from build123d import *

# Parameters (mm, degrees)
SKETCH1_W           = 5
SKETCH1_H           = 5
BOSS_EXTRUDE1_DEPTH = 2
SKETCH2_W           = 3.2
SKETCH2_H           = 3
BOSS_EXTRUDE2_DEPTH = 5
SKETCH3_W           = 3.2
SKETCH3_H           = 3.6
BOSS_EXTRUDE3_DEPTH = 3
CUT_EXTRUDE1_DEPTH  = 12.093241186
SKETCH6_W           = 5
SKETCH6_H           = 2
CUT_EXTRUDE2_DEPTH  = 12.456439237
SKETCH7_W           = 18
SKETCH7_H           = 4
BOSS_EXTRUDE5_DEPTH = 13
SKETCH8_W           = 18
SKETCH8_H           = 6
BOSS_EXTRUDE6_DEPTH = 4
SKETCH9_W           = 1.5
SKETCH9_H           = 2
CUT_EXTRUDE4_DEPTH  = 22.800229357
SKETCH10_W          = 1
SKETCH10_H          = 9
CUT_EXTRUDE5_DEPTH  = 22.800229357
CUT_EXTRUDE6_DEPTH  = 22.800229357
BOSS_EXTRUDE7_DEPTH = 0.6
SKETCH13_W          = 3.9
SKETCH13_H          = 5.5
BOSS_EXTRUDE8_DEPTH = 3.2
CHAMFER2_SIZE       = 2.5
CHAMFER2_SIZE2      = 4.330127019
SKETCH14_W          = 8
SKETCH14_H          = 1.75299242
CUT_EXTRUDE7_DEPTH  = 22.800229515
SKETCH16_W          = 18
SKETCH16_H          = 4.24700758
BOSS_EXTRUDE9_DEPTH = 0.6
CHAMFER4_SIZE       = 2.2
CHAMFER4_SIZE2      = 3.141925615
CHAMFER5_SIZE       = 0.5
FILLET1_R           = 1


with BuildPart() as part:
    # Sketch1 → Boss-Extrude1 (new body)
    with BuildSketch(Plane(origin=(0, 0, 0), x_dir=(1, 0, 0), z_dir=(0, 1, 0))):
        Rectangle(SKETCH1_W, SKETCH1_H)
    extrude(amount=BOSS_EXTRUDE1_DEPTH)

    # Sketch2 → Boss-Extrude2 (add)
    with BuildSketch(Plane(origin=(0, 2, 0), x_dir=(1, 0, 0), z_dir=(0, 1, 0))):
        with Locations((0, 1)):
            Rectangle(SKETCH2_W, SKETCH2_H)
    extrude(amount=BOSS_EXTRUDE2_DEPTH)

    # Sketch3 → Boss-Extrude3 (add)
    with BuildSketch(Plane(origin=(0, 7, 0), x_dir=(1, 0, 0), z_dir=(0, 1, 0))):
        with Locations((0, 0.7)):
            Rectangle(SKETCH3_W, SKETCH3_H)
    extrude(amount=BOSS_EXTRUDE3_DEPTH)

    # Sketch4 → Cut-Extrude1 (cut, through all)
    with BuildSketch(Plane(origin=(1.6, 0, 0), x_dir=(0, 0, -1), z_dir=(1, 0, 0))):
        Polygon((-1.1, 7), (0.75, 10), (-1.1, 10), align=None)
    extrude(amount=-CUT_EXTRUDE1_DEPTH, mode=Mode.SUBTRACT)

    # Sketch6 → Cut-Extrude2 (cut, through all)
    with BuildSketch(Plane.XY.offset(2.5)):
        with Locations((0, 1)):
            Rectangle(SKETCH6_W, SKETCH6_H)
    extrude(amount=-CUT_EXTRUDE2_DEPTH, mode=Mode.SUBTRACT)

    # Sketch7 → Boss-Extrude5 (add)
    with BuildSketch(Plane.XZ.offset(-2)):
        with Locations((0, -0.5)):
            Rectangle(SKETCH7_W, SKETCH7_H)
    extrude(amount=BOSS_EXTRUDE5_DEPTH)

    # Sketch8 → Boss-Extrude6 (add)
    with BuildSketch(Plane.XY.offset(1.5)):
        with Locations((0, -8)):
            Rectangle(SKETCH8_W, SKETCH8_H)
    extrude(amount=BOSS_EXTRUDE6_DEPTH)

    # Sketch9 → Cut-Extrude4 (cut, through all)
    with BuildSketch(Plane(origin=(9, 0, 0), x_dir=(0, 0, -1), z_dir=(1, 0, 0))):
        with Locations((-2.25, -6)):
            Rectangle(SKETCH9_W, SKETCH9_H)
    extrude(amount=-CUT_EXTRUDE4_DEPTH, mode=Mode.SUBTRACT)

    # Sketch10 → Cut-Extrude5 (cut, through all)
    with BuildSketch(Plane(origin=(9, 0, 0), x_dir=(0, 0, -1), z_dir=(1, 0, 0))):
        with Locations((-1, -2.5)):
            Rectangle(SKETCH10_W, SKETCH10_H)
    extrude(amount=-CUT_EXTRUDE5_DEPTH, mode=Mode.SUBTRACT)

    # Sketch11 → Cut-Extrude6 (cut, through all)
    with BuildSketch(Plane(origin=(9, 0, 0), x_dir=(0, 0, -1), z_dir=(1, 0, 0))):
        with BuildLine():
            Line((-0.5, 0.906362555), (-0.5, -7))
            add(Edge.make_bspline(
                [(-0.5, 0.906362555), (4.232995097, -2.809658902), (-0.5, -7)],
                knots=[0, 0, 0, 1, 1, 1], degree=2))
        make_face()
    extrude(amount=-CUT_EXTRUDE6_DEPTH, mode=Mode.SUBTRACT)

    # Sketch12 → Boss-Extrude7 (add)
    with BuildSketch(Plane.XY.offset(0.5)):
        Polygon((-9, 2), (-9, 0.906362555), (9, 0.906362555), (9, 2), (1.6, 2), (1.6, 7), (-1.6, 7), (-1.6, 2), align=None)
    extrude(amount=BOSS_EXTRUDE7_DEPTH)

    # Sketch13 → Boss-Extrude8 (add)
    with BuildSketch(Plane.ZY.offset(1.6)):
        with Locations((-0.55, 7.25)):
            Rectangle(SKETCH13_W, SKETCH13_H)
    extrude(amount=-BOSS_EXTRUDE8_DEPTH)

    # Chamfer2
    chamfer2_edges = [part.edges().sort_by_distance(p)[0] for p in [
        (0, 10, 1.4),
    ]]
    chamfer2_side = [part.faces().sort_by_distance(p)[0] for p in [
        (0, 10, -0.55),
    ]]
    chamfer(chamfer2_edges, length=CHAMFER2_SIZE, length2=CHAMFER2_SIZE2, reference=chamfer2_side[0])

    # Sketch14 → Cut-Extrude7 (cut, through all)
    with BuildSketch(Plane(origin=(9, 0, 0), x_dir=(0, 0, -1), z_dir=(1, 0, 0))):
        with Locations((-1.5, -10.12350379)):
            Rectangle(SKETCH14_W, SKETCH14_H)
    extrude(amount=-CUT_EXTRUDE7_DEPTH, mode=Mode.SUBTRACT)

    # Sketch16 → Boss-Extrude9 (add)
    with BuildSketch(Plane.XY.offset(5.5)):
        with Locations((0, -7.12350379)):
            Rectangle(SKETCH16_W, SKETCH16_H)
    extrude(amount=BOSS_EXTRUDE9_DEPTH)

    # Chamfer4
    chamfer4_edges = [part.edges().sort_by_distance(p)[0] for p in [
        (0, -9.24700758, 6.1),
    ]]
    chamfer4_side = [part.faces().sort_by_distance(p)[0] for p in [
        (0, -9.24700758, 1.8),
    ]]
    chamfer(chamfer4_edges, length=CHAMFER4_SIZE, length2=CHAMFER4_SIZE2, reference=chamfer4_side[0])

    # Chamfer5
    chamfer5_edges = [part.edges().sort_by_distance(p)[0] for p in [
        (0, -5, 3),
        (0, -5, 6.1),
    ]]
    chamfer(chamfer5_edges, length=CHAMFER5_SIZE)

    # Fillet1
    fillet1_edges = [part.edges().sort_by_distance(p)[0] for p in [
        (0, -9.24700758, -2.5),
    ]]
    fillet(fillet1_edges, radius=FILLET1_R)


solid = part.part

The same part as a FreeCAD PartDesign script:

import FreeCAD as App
import Part
import Sketcher

V = App.Vector
Q = App.Units.Quantity


def edges_at(feature, points):
    """Names of the edges that pass closest to the given points."""
    edges = feature.Shape.Edges
    near = lambda p: min(range(len(edges)), key=lambda i: edges[i].distToShape(Part.Vertex(*p))[0])
    return sorted({f"Edge{near(p) + 1}" for p in points})

doc = App.newDocument("Part")
body = doc.addObject("PartDesign::Body", "Body")

sketch1 = doc.addObject("Sketcher::SketchObject", "Sketch")
body.addObject(sketch1)
sketch1.AttachmentSupport = (doc.XZ_Plane, [""])
sketch1.MapMode = "FlatFace"
sketch1.addGeometry([
    Part.LineSegment(V(-2, -2, 0), V(-2, 2, 0)),
    Part.LineSegment(V(-2, 2, 0), V(2, 2, 0)),
    Part.LineSegment(V(2, 2, 0), V(2, -2, 0)),
    Part.LineSegment(V(2, -2, 0), V(-2, -2, 0)),
], False)
sketch1.addConstraint([
    Sketcher.Constraint("Coincident", 0, 2, 1, 1),
    Sketcher.Constraint("Coincident", 1, 2, 2, 1),
    Sketcher.Constraint("Coincident", 2, 2, 3, 1),
    Sketcher.Constraint("Coincident", 3, 2, 0, 1),
    Sketcher.Constraint("Vertical", 0),
    Sketcher.Constraint("Horizontal", 1),
    Sketcher.Constraint("Vertical", 2),
    Sketcher.Constraint("Horizontal", 3),
    Sketcher.Constraint("Symmetric", 0, 2, 2, 2, -1, 1),
    Sketcher.Constraint("Equal", 3, 0),
    Sketcher.Constraint("DistanceX", 1, 1, 1, 2, Q("5 mm")),
])
pad1 = doc.addObject("PartDesign::Pad", "Pad")
body.addObject(pad1)
pad1.Profile = sketch1
pad1.Length = 2
pad1.Reversed = True

sketch2 = doc.addObject("Sketcher::SketchObject", "Sketch001")
body.addObject(sketch2)
sketch2.AttachmentSupport = (doc.XZ_Plane, [""])
sketch2.MapMode = "FlatFace"
sketch2.AttachmentOffset = App.Placement(V(0, 0, -2), App.Rotation())
sketch2.addGeometry([
    Part.LineSegment(V(-1.6, -2.5, 0), V(-1.6, 0.5, 0)),
    Part.LineSegment(V(-1.6, 0.5, 0), V(1.6, 0.5, 0)),
    Part.LineSegment(V(1.6, 0.5, 0), V(1.6, -2.5, 0)),
    Part.LineSegment(V(1.6, -2.5, 0), V(-1.6, -2.5, 0)),
], False)
sketch2.addConstraint([
    Sketcher.Constraint("Coincident", 0, 2, 1, 1),
    Sketcher.Constraint("Coincident", 1, 2, 2, 1),
    Sketcher.Constraint("Coincident", 2, 2, 3, 1),
    Sketcher.Constraint("Coincident", 3, 2, 0, 1),
    Sketcher.Constraint("Vertical", 0),
    Sketcher.Constraint("Horizontal", 1),
    Sketcher.Constraint("Vertical", 2),
    Sketcher.Constraint("Horizontal", 3),
    Sketcher.Constraint("DistanceY", 0, 1, 0, 2, Q("3 mm")),
    Sketcher.Constraint("DistanceX", 1, 1, 1, 2, Q("3.2 mm")),
    Sketcher.Constraint("DistanceX", 0, 2, -1, 1, Q("1.6 mm")),
    Sketcher.Constraint("DistanceY", -1, 1, 0, 2, Q("0.5 mm")),
])
pad2 = doc.addObject("PartDesign::Pad", "Pad001")
body.addObject(pad2)
pad2.Profile = sketch2
pad2.Length = 5
pad2.Reversed = True

sketch3 = doc.addObject("Sketcher::SketchObject", "Sketch002")
body.addObject(sketch3)
sketch3.AttachmentSupport = (doc.XZ_Plane, [""])
sketch3.MapMode = "FlatFace"
sketch3.AttachmentOffset = App.Placement(V(0, 0, -7), App.Rotation())
sketch3.addGeometry([
    Part.LineSegment(V(-1.6, -2.5, 0), V(-1.6, 1.1, 0)),
    Part.LineSegment(V(-1.6, 1.1, 0), V(1.6, 1.1, 0)),
    Part.LineSegment(V(1.6, 1.1, 0), V(1.6, -2.5, 0)),
    Part.LineSegment(V(1.6, -2.5, 0), V(-1.6, -2.5, 0)),
], False)
sketch3.addConstraint([
    Sketcher.Constraint("Coincident", 0, 2, 1, 1),
    Sketcher.Constraint("Coincident", 1, 2, 2, 1),
    Sketcher.Constraint("Coincident", 2, 2, 3, 1),
    Sketcher.Constraint("Coincident", 3, 2, 0, 1),
    Sketcher.Constraint("Vertical", 0),
    Sketcher.Constraint("Horizontal", 1),
    Sketcher.Constraint("Vertical", 2),
    Sketcher.Constraint("Horizontal", 3),
    Sketcher.Constraint("DistanceX", 1, 1, 1, 2, Q("3.2 mm")),
    Sketcher.Constraint("DistanceY", 0, 1, 0, 2, Q("3.6 mm")),
    Sketcher.Constraint("DistanceX", 0, 2, -1, 1, Q("1.6 mm")),
    Sketcher.Constraint("DistanceY", -1, 1, 0, 2, Q("1.1 mm")),
])
pad3 = doc.addObject("PartDesign::Pad", "Pad002")
body.addObject(pad3)
pad3.Profile = sketch3
pad3.Length = 3
pad3.Reversed = True

sketch4 = doc.addObject("Sketcher::SketchObject", "Sketch003")
body.addObject(sketch4)
sketch4.AttachmentSupport = (doc.YZ_Plane, [""])
sketch4.MapMode = "FlatFace"
sketch4.AttachmentOffset = App.Placement(V(0, 0, 1.6), App.Rotation())
sketch4.addGeometry([
    Part.LineSegment(V(7, 1.1, 0), V(10, -0.8, 0)),
    Part.LineSegment(V(10, -0.8, 0), V(10, 1.1, 0)),
    Part.LineSegment(V(10, 1.1, 0), V(7, 1.1, 0)),
], False)
sketch4.addConstraint([
    Sketcher.Constraint("Coincident", 0, 2, 1, 1),
    Sketcher.Constraint("Coincident", 1, 2, 2, 1),
    Sketcher.Constraint("Coincident", 2, 2, 0, 1),
    Sketcher.Constraint("Vertical", 1),
    Sketcher.Constraint("Horizontal", 2),
    Sketcher.Constraint("DistanceX", 2, 2, 2, 1, Q("3 mm")),
    Sketcher.Constraint("DistanceX", -1, 1, 0, 2, Q("10 mm")),
    Sketcher.Constraint("DistanceY", 1, 1, 1, 2, Q("1.85 mm")),
    Sketcher.Constraint("DistanceY", -1, 1, 1, 2, Q("1.1 mm")),
])
pocket1 = doc.addObject("PartDesign::Pocket", "Pocket")
body.addObject(pocket1)
pocket1.Profile = sketch4
pocket1.Type = "ThroughAll"

sketch5 = doc.addObject("Sketcher::SketchObject", "Sketch004")
body.addObject(sketch5)
sketch5.AttachmentSupport = (doc.XY_Plane, [""])
sketch5.MapMode = "FlatFace"
sketch5.AttachmentOffset = App.Placement(V(0, 0, 2.5), App.Rotation())
sketch5.addGeometry([
    Part.LineSegment(V(-2.5, 2, 0), V(-2.5, 0, 0)),
    Part.LineSegment(V(-2.5, 0, 0), V(2.5, 0, 0)),
    Part.LineSegment(V(2.5, 0, 0), V(2.5, 2, 0)),
    Part.LineSegment(V(2.5, 2, 0), V(-2.5, 2, 0)),
], False)
sketch5.addConstraint([
    Sketcher.Constraint("Coincident", 0, 2, 1, 1),
    Sketcher.Constraint("Coincident", 1, 2, 2, 1),
    Sketcher.Constraint("Coincident", 2, 2, 3, 1),
    Sketcher.Constraint("Coincident", 3, 2, 0, 1),
    Sketcher.Constraint("Vertical", 0),
    Sketcher.Constraint("Horizontal", 1),
    Sketcher.Constraint("Vertical", 2),
    Sketcher.Constraint("Horizontal", 3),
    Sketcher.Constraint("Symmetric", 0, 2, 1, 2, -1, 1),
    Sketcher.Constraint("DistanceX", 1, 1, 1, 2, Q("5 mm")),
    Sketcher.Constraint("DistanceY", 0, 2, 0, 1, Q("2 mm")),
])
pocket2 = doc.addObject("PartDesign::Pocket", "Pocket001")
body.addObject(pocket2)
pocket2.Profile = sketch5
pocket2.Type = "ThroughAll"

sketch6 = doc.addObject("Sketcher::SketchObject", "Sketch005")
body.addObject(sketch6)
sketch6.AttachmentSupport = (doc.XZ_Plane, [""])
sketch6.MapMode = "FlatFace"
sketch6.AttachmentOffset = App.Placement(V(0, 0, -2), App.Rotation())
sketch6.addGeometry([
    Part.LineSegment(V(-9, 1.5, 0), V(-9, -2.5, 0)),
    Part.LineSegment(V(-9, -2.5, 0), V(9, -2.5, 0)),
    Part.LineSegment(V(9, -2.5, 0), V(9, 1.5, 0)),
    Part.LineSegment(V(9, 1.5, 0), V(-9, 1.5, 0)),
], False)
sketch6.addConstraint([
    Sketcher.Constraint("Coincident", 0, 2, 1, 1),
    Sketcher.Constraint("Coincident", 1, 2, 2, 1),
    Sketcher.Constraint("Coincident", 2, 2, 3, 1),
    Sketcher.Constraint("Coincident", 3, 2, 0, 1),
    Sketcher.Constraint("Vertical", 0),
    Sketcher.Constraint("Horizontal", 1),
    Sketcher.Constraint("Vertical", 2),
    Sketcher.Constraint("Horizontal", 3),
    Sketcher.Constraint("DistanceX", 1, 1, 1, 2, Q("18 mm")),
    Sketcher.Constraint("DistanceY", 0, 2, 0, 1, Q("4 mm")),
    Sketcher.Constraint("DistanceX", 0, 2, -1, 1, Q("9 mm")),
    Sketcher.Constraint("DistanceY", 0, 2, -1, 1, Q("2.5 mm")),
])
pad4 = doc.addObject("PartDesign::Pad", "Pad003")
body.addObject(pad4)
pad4.Profile = sketch6
pad4.Length = 13

sketch7 = doc.addObject("Sketcher::SketchObject", "Sketch006")
body.addObject(sketch7)
sketch7.AttachmentSupport = (doc.XY_Plane, [""])
sketch7.MapMode = "FlatFace"
sketch7.AttachmentOffset = App.Placement(V(0, 0, 1.5), App.Rotation())
sketch7.addGeometry([
    Part.LineSegment(V(-9, -5, 0), V(-9, -11, 0)),
    Part.LineSegment(V(-9, -11, 0), V(9, -11, 0)),
    Part.LineSegment(V(9, -11, 0), V(9, -5, 0)),
    Part.LineSegment(V(9, -5, 0), V(-9, -5, 0)),
], False)
sketch7.addConstraint([
    Sketcher.Constraint("Coincident", 0, 2, 1, 1),
    Sketcher.Constraint("Coincident", 1, 2, 2, 1),
    Sketcher.Constraint("Coincident", 2, 2, 3, 1),
    Sketcher.Constraint("Coincident", 3, 2, 0, 1),
    Sketcher.Constraint("Vertical", 0),
    Sketcher.Constraint("Horizontal", 1),
    Sketcher.Constraint("Vertical", 2),
    Sketcher.Constraint("Horizontal", 3),
    Sketcher.Constraint("DistanceX", 1, 1, 1, 2, Q("18 mm")),
    Sketcher.Constraint("DistanceY", 0, 2, 0, 1, Q("6 mm")),
    Sketcher.Constraint("DistanceX", 0, 2, -1, 1, Q("9 mm")),
    Sketcher.Constraint("DistanceY", 0, 2, -1, 1, Q("11 mm")),
])
pad5 = doc.addObject("PartDesign::Pad", "Pad004")
body.addObject(pad5)
pad5.Profile = sketch7
pad5.Length = 4

sketch8 = doc.addObject("Sketcher::SketchObject", "Sketch007")
body.addObject(sketch8)
sketch8.AttachmentSupport = (doc.YZ_Plane, [""])
sketch8.MapMode = "FlatFace"
sketch8.AttachmentOffset = App.Placement(V(0, 0, 9), App.Rotation())
sketch8.addGeometry([
    Part.LineSegment(V(-5, 3, 0), V(-7, 3, 0)),
    Part.LineSegment(V(-7, 3, 0), V(-7, 1.5, 0)),
    Part.LineSegment(V(-7, 1.5, 0), V(-5, 1.5, 0)),
    Part.LineSegment(V(-5, 1.5, 0), V(-5, 3, 0)),
], False)
sketch8.addConstraint([
    Sketcher.Constraint("Coincident", 0, 2, 1, 1),
    Sketcher.Constraint("Coincident", 1, 2, 2, 1),
    Sketcher.Constraint("Coincident", 2, 2, 3, 1),
    Sketcher.Constraint("Coincident", 3, 2, 0, 1),
    Sketcher.Constraint("Horizontal", 0),
    Sketcher.Constraint("Vertical", 1),
    Sketcher.Constraint("Horizontal", 2),
    Sketcher.Constraint("Vertical", 3),
    Sketcher.Constraint("DistanceX", 0, 2, 0, 1, Q("2 mm")),
    Sketcher.Constraint("DistanceY", 1, 2, 1, 1, Q("1.5 mm")),
    Sketcher.Constraint("DistanceX", 0, 2, -1, 1, Q("7 mm")),
    Sketcher.Constraint("DistanceY", -1, 1, 0, 2, Q("3 mm")),
])
pocket3 = doc.addObject("PartDesign::Pocket", "Pocket002")
body.addObject(pocket3)
pocket3.Profile = sketch8
pocket3.Type = "ThroughAll"

sketch9 = doc.addObject("Sketcher::SketchObject", "Sketch008")
body.addObject(sketch9)
sketch9.AttachmentSupport = (doc.YZ_Plane, [""])
sketch9.MapMode = "FlatFace"
sketch9.AttachmentOffset = App.Placement(V(0, 0, 9), App.Rotation())
sketch9.addGeometry([
    Part.LineSegment(V(2, 1.5, 0), V(-7, 1.5, 0)),
    Part.LineSegment(V(-7, 1.5, 0), V(-7, 0.5, 0)),
    Part.LineSegment(V(-7, 0.5, 0), V(2, 0.5, 0)),
    Part.LineSegment(V(2, 0.5, 0), V(2, 1.5, 0)),
], False)
sketch9.addConstraint([
    Sketcher.Constraint("Coincident", 0, 2, 1, 1),
    Sketcher.Constraint("Coincident", 1, 2, 2, 1),
    Sketcher.Constraint("Coincident", 2, 2, 3, 1),
    Sketcher.Constraint("Coincident", 3, 2, 0, 1),
    Sketcher.Constraint("Horizontal", 0),
    Sketcher.Constraint("Vertical", 1),
    Sketcher.Constraint("Horizontal", 2),
    Sketcher.Constraint("Vertical", 3),
    Sketcher.Constraint("DistanceX", 0, 2, 0, 1, Q("9 mm")),
    Sketcher.Constraint("DistanceY", 1, 2, 1, 1, Q("1 mm")),
    Sketcher.Constraint("DistanceX", 0, 2, -1, 1, Q("7 mm")),
    Sketcher.Constraint("DistanceY", -1, 1, 0, 2, Q("1.5 mm")),
])
pocket4 = doc.addObject("PartDesign::Pocket", "Pocket003")
body.addObject(pocket4)
pocket4.Profile = sketch9
pocket4.Type = "ThroughAll"

sketch10 = doc.addObject("Sketcher::SketchObject", "Sketch009")
body.addObject(sketch10)
sketch10.AttachmentSupport = (doc.YZ_Plane, [""])
sketch10.MapMode = "FlatFace"
sketch10.AttachmentOffset = App.Placement(V(0, 0, 9), App.Rotation())
sketch10.addGeometry([
    Part.LineSegment(V(0.906363, 0.5, 0), V(-7, 0.5, 0)),
    Part.BSplineCurve([V(0.906363, 0.5, 0), V(-2.809659, -4.232995, 0), V(-7, 0.5, 0)], [3, 3], [0, 1], False, 2, [1, 1, 1], False),
], False)
sketch10.addConstraint([
    Sketcher.Constraint("Block", 1),
    Sketcher.Constraint("Coincident", 0, 1, 1, 1),
    Sketcher.Constraint("Coincident", 1, 2, 0, 2),
])
pocket5 = doc.addObject("PartDesign::Pocket", "Pocket004")
body.addObject(pocket5)
pocket5.Profile = sketch10
pocket5.Type = "ThroughAll"

sketch11 = doc.addObject("Sketcher::SketchObject", "Sketch010")
body.addObject(sketch11)
sketch11.AttachmentSupport = (doc.XY_Plane, [""])
sketch11.MapMode = "FlatFace"
sketch11.AttachmentOffset = App.Placement(V(0, 0, 0.5), App.Rotation())
sketch11.addGeometry([
    Part.LineSegment(V(-9, 2, 0), V(-9, 0.9, 0)),
    Part.LineSegment(V(-9, 0.9, 0), V(9, 0.9, 0)),
    Part.LineSegment(V(9, 0.9, 0), V(9, 2, 0)),
    Part.LineSegment(V(9, 2, 0), V(1.6, 2, 0)),
    Part.LineSegment(V(1.6, 2, 0), V(1.6, 7, 0)),
    Part.LineSegment(V(1.6, 7, 0), V(-1.6, 7, 0)),
    Part.LineSegment(V(-1.6, 7, 0), V(-1.6, 2, 0)),
    Part.LineSegment(V(-1.6, 2, 0), V(-9, 2, 0)),
], False)
sketch11.addConstraint([
    Sketcher.Constraint("Coincident", 0, 2, 1, 1),
    Sketcher.Constraint("Coincident", 1, 2, 2, 1),
    Sketcher.Constraint("Coincident", 2, 2, 3, 1),
    Sketcher.Constraint("Coincident", 3, 2, 4, 1),
    Sketcher.Constraint("Coincident", 4, 2, 5, 1),
    Sketcher.Constraint("Coincident", 5, 2, 6, 1),
    Sketcher.Constraint("Coincident", 6, 2, 7, 1),
    Sketcher.Constraint("Coincident", 7, 2, 0, 1),
    Sketcher.Constraint("Vertical", 0),
    Sketcher.Constraint("Horizontal", 1),
    Sketcher.Constraint("Vertical", 2),
    Sketcher.Constraint("Horizontal", 3),
    Sketcher.Constraint("Vertical", 4),
    Sketcher.Constraint("Horizontal", 5),
    Sketcher.Constraint("Vertical", 6),
    Sketcher.Constraint("Horizontal", 7),
    Sketcher.Constraint("Symmetric", 3, 2, 6, 2, -2),
    Sketcher.Constraint("Equal", 3, 7),
    Sketcher.Constraint("DistanceX", 1, 1, 1, 2, Q("18 mm")),
    Sketcher.Constraint("DistanceY", 4, 1, 4, 2, Q("5 mm")),
    Sketcher.Constraint("DistanceX", 3, 2, 3, 1, Q("7.4 mm")),
    Sketcher.Constraint("DistanceY", -1, 1, 2, 2, Q("2 mm")),
    Sketcher.Constraint("DistanceY", 0, 2, 0, 1, Q("1.093637 mm")),
])
pad6 = doc.addObject("PartDesign::Pad", "Pad005")
body.addObject(pad6)
pad6.Profile = sketch11
pad6.Length = 0.6

sketch12 = doc.addObject("Sketcher::SketchObject", "Sketch011")
body.addObject(sketch12)
sketch12.AttachmentSupport = (doc.YZ_Plane, [""])
sketch12.MapMode = "FlatFace"
sketch12.AttachmentOffset = App.Placement(V(0, 0, -1.6), App.Rotation())
sketch12.addGeometry([
    Part.LineSegment(V(10, -2.5, 0), V(4.5, -2.5, 0)),
    Part.LineSegment(V(4.5, -2.5, 0), V(4.5, 1.4, 0)),
    Part.LineSegment(V(4.5, 1.4, 0), V(10, 1.4, 0)),
    Part.LineSegment(V(10, 1.4, 0), V(10, -2.5, 0)),
], False)
sketch12.addConstraint([
    Sketcher.Constraint("Coincident", 0, 2, 1, 1),
    Sketcher.Constraint("Coincident", 1, 2, 2, 1),
    Sketcher.Constraint("Coincident", 2, 2, 3, 1),
    Sketcher.Constraint("Coincident", 3, 2, 0, 1),
    Sketcher.Constraint("Horizontal", 0),
    Sketcher.Constraint("Vertical", 1),
    Sketcher.Constraint("Horizontal", 2),
    Sketcher.Constraint("Vertical", 3),
    Sketcher.Constraint("DistanceX", 0, 2, 0, 1, Q("5.5 mm")),
    Sketcher.Constraint("DistanceY", 1, 1, 1, 2, Q("3.9 mm")),
    Sketcher.Constraint("DistanceX", -1, 1, 2, 2, Q("10 mm")),
    Sketcher.Constraint("DistanceY", 0, 2, -1, 1, Q("2.5 mm")),
])
pad7 = doc.addObject("PartDesign::Pad", "Pad006")
body.addObject(pad7)
pad7.Profile = sketch12
pad7.Length = 3.2
doc.recompute()

chamfer = doc.addObject("PartDesign::Chamfer", "Chamfer")
body.addObject(chamfer)
chamfer.Base = (pad7, edges_at(pad7, [(0, 10, 1.4)]))
chamfer.ChamferType = "Two distances"
chamfer.Size = 2.5
chamfer.Size2 = 4.330127
chamfer.FlipDirection = True

sketch13 = doc.addObject("Sketcher::SketchObject", "Sketch012")
body.addObject(sketch13)
sketch13.AttachmentSupport = (doc.YZ_Plane, [""])
sketch13.MapMode = "FlatFace"
sketch13.AttachmentOffset = App.Placement(V(0, 0, 9), App.Rotation())
sketch13.addGeometry([
    Part.LineSegment(V(-9.2, 5.5, 0), V(-11, 5.5, 0)),
    Part.LineSegment(V(-11, 5.5, 0), V(-11, -2.5, 0)),
    Part.LineSegment(V(-11, -2.5, 0), V(-9.2, -2.5, 0)),
    Part.LineSegment(V(-9.2, -2.5, 0), V(-9.2, 5.5, 0)),
], False)
sketch13.addConstraint([
    Sketcher.Constraint("Coincident", 0, 2, 1, 1),
    Sketcher.Constraint("Coincident", 1, 2, 2, 1),
    Sketcher.Constraint("Coincident", 2, 2, 3, 1),
    Sketcher.Constraint("Coincident", 3, 2, 0, 1),
    Sketcher.Constraint("Horizontal", 0),
    Sketcher.Constraint("Vertical", 1),
    Sketcher.Constraint("Horizontal", 2),
    Sketcher.Constraint("Vertical", 3),
    Sketcher.Constraint("DistanceY", 1, 2, 1, 1, Q("8 mm")),
    Sketcher.Constraint("DistanceX", 0, 2, -1, 1, Q("11 mm")),
    Sketcher.Constraint("DistanceY", -1, 1, 0, 2, Q("5.5 mm")),
    Sketcher.Constraint("DistanceX", 0, 2, 0, 1, Q("1.752992 mm")),
])
pocket6 = doc.addObject("PartDesign::Pocket", "Pocket005")
body.addObject(pocket6)
pocket6.Profile = sketch13
pocket6.Type = "ThroughAll"

sketch14 = doc.addObject("Sketcher::SketchObject", "Sketch013")
body.addObject(sketch14)
sketch14.AttachmentSupport = (doc.XY_Plane, [""])
sketch14.MapMode = "FlatFace"
sketch14.AttachmentOffset = App.Placement(V(0, 0, 5.5), App.Rotation())
sketch14.addGeometry([
    Part.LineSegment(V(-9, -5, 0), V(-9, -9.2, 0)),
    Part.LineSegment(V(-9, -9.2, 0), V(9, -9.2, 0)),
    Part.LineSegment(V(9, -9.2, 0), V(9, -5, 0)),
    Part.LineSegment(V(9, -5, 0), V(-9, -5, 0)),
], False)
sketch14.addConstraint([
    Sketcher.Constraint("Coincident", 0, 2, 1, 1),
    Sketcher.Constraint("Coincident", 1, 2, 2, 1),
    Sketcher.Constraint("Coincident", 2, 2, 3, 1),
    Sketcher.Constraint("Coincident", 3, 2, 0, 1),
    Sketcher.Constraint("Vertical", 0),
    Sketcher.Constraint("Horizontal", 1),
    Sketcher.Constraint("Vertical", 2),
    Sketcher.Constraint("Horizontal", 3),
    Sketcher.Constraint("DistanceX", 1, 1, 1, 2, Q("18 mm")),
    Sketcher.Constraint("DistanceX", 0, 2, -1, 1, Q("9 mm")),
    Sketcher.Constraint("DistanceY", 2, 2, -1, 1, Q("5 mm")),
    Sketcher.Constraint("DistanceY", 0, 2, 0, 1, Q("4.247008 mm")),
])
pad8 = doc.addObject("PartDesign::Pad", "Pad007")
body.addObject(pad8)
pad8.Profile = sketch14
pad8.Length = 0.6
doc.recompute()

chamfer2 = doc.addObject("PartDesign::Chamfer", "Chamfer001")
body.addObject(chamfer2)
chamfer2.Base = (pad8, edges_at(pad8, [(0, -9.247, 6.1)]))
chamfer2.ChamferType = "Two distances"
chamfer2.Size = 2.2
chamfer2.Size2 = 3.141926
chamfer2.FlipDirection = True
doc.recompute()

chamfer3 = doc.addObject("PartDesign::Chamfer", "Chamfer002")
body.addObject(chamfer3)
chamfer3.Base = (chamfer2, edges_at(chamfer2, [(0, -5, 3), (0, -5, 6.1)]))
chamfer3.Size = 0.5
doc.recompute()

fillet = doc.addObject("PartDesign::Fillet", "Fillet")
body.addObject(fillet)
fillet.Base = (chamfer3, edges_at(chamfer3, [(0, -9.247, -2.5)]))
fillet.Radius = 1

doc.recompute()
